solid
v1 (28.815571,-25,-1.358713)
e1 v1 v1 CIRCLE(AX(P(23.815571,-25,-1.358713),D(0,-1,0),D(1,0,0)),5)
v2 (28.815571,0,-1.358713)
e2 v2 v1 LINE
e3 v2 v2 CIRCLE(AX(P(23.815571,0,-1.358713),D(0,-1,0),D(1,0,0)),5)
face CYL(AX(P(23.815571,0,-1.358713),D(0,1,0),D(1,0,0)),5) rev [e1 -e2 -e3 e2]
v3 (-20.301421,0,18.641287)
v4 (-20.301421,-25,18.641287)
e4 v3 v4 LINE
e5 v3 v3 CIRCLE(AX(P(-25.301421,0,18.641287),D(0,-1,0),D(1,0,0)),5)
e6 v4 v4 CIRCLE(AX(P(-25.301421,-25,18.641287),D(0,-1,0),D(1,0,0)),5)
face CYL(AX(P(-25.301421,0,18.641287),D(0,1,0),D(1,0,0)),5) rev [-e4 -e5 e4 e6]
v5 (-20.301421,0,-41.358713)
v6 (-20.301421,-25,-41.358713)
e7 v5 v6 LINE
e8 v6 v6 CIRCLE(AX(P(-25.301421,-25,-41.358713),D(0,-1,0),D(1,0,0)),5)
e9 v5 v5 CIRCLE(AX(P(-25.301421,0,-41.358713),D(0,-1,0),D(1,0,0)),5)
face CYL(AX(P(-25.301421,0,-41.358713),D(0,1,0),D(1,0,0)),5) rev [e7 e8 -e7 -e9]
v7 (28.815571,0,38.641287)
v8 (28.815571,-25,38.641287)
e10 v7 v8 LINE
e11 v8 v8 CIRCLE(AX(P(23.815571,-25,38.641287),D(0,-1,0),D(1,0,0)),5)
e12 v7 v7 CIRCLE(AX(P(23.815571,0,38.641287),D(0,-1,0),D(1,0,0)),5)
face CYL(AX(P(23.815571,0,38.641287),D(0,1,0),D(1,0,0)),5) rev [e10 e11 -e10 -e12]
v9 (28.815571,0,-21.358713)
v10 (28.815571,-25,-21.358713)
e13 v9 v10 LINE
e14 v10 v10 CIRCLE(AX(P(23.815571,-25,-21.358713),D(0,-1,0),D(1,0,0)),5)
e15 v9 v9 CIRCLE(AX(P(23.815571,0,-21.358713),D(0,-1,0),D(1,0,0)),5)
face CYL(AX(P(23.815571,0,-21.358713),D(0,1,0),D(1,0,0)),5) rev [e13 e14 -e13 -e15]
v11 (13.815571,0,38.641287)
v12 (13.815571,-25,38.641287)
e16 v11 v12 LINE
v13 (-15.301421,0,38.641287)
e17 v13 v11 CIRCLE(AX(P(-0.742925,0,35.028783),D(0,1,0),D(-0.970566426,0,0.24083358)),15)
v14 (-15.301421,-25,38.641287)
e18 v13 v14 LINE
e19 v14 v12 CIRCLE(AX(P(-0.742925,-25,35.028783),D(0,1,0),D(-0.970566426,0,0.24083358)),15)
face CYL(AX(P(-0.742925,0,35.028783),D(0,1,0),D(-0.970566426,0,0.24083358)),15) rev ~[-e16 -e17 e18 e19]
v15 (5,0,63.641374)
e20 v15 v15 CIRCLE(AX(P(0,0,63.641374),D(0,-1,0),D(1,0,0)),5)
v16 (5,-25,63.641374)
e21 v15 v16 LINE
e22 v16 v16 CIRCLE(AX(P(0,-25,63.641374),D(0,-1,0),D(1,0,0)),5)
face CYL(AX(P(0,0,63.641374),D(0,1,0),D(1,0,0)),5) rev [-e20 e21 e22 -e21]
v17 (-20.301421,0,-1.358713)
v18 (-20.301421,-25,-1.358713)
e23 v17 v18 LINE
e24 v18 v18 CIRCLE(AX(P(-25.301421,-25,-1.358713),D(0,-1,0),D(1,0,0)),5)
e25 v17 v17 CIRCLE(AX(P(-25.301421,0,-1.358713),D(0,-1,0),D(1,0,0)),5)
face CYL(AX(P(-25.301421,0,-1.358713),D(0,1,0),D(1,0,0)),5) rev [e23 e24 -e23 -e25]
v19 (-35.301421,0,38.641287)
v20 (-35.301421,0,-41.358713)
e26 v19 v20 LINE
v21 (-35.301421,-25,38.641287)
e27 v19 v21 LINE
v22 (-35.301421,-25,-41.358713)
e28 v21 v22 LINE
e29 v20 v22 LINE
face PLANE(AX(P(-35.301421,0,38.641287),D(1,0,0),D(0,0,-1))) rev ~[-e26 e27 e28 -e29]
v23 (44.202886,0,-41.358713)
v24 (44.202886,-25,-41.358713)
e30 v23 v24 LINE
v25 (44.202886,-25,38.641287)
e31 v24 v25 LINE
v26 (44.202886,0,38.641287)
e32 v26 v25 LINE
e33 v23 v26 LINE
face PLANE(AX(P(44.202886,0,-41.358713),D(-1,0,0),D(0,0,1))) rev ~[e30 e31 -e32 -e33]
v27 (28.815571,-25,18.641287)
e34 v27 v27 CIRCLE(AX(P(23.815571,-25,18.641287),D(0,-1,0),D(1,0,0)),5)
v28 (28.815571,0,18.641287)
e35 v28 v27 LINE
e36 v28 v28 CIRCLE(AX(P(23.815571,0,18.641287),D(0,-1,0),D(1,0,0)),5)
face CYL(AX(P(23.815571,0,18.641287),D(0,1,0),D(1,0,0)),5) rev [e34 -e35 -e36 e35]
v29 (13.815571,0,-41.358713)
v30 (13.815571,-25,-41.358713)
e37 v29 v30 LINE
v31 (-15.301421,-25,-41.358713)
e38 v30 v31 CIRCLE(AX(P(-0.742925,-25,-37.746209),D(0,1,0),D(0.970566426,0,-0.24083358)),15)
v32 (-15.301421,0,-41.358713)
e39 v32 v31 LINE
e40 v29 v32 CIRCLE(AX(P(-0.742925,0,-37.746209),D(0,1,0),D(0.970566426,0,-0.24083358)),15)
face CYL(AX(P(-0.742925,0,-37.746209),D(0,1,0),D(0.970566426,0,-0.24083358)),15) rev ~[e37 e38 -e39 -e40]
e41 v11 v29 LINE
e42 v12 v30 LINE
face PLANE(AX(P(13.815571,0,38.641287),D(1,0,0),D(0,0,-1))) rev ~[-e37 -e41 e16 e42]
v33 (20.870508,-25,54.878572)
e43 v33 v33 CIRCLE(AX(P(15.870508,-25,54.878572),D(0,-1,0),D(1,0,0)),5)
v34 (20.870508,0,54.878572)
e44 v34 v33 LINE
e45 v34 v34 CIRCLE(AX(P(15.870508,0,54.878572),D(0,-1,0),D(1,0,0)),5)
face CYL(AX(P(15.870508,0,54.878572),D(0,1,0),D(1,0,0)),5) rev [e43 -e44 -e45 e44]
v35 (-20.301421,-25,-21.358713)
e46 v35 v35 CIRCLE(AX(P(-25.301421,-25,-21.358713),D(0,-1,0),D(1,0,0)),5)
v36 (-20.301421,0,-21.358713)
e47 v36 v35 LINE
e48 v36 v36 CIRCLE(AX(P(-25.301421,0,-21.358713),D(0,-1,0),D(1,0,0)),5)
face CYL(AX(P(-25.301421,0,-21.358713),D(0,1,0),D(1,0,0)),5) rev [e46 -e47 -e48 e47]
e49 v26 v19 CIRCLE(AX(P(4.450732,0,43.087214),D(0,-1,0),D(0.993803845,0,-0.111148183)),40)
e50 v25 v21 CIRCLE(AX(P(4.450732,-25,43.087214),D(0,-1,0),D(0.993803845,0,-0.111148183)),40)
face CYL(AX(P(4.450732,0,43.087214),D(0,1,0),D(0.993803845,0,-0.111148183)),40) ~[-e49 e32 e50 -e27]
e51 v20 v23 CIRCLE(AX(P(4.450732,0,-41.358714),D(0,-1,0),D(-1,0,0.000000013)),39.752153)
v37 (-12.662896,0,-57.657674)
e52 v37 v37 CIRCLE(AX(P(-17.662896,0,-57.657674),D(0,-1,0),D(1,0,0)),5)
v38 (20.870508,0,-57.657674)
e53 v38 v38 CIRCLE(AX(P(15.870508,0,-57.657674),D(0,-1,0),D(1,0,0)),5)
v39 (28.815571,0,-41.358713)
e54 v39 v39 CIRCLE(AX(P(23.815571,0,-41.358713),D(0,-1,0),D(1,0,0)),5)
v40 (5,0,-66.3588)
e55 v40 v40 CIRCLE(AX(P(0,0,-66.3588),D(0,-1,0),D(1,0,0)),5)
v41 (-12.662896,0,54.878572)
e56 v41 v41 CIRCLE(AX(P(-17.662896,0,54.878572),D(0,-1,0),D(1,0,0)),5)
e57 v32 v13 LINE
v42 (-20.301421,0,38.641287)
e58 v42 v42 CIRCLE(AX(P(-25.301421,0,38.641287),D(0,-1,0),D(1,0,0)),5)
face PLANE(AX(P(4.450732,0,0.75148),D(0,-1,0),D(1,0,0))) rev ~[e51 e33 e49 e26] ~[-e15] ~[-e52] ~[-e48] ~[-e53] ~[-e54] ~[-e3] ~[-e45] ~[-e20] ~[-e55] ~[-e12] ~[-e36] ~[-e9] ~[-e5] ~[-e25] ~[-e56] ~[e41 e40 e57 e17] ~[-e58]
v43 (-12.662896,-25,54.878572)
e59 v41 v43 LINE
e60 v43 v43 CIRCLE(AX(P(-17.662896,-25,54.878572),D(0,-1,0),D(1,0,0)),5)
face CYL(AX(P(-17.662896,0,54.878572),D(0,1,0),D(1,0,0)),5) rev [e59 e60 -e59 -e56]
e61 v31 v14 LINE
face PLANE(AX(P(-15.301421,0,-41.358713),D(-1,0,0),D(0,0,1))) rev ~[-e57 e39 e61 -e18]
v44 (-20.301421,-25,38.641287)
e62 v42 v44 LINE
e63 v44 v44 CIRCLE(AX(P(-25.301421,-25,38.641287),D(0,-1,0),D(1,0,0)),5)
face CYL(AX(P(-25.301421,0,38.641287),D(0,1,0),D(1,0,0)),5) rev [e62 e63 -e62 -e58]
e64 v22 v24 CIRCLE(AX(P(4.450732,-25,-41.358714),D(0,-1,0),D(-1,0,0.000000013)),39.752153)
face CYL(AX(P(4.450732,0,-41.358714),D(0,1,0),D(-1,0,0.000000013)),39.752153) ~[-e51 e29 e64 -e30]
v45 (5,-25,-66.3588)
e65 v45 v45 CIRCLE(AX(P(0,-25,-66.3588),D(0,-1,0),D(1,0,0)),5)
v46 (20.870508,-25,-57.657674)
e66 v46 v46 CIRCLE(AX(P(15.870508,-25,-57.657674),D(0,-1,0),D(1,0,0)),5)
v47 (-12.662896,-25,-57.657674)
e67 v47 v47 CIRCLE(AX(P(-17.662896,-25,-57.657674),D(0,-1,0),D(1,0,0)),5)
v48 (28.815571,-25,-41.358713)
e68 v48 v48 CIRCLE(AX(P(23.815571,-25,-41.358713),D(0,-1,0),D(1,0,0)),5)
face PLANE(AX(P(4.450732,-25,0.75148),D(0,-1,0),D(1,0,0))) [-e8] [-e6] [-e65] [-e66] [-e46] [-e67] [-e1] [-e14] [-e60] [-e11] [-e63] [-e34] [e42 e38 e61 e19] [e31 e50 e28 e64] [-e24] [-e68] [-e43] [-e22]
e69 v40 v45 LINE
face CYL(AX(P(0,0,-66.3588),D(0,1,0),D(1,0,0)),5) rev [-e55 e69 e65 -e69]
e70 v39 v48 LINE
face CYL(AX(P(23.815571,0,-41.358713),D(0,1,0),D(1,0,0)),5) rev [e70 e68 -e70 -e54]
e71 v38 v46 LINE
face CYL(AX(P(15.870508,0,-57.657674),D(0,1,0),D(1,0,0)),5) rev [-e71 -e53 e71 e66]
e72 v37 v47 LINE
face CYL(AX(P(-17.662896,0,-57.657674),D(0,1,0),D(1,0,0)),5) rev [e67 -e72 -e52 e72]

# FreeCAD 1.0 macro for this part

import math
import FreeCAD as App
import Part
import Sketcher
Q = App.Units.Quantity

doc = App.newDocument("Part")
body = doc.addObject("PartDesign::Body", "Body")

sketch1 = body.newObject("Sketcher::SketchObject", "Sketch")
sketch1.AttachmentSupport = (doc.getObject("XZ_Plane"), [""])
sketch1.MapMode = "FlatFace"
sketch1.addGeometry([
    Part.ArcOfCircle(Part.Circle(App.Vector(4, 43, 0), App.Vector(0, 0, 1), 40), math.radians(-6), math.radians(186)),
    Part.LineSegment(App.Vector(-35, 39, 0), App.Vector(-35, -41, 0)),
    Part.ArcOfCircle(Part.Circle(App.Vector(4, -41, 0), App.Vector(0, 0, 1), 40), math.radians(180), math.radians(360)),
    Part.LineSegment(App.Vector(44, -41, 0), App.Vector(44, 39, 0)),
    Part.Circle(App.Vector(-18, -58, 0), App.Vector(0, 0, 1), 5),
    Part.Circle(App.Vector(-25, -41, 0), App.Vector(0, 0, 1), 5),
    Part.Circle(App.Vector(-25, -21, 0), App.Vector(0, 0, 1), 5),
    Part.Circle(App.Vector(0, -66, 0), App.Vector(0, 0, 1), 5),
    Part.Circle(App.Vector(16, -58, 0), App.Vector(0, 0, 1), 5),
    Part.Circle(App.Vector(24, -41, 0), App.Vector(0, 0, 1), 5),
    Part.Circle(App.Vector(24, -21, 0), App.Vector(0, 0, 1), 5),
    Part.Circle(App.Vector(-25, -1, 0), App.Vector(0, 0, 1), 5),
    Part.Circle(App.Vector(-25, 19, 0), App.Vector(0, 0, 1), 5),
    Part.Circle(App.Vector(-25, 39, 0), App.Vector(0, 0, 1), 5),
    Part.Circle(App.Vector(-18, 55, 0), App.Vector(0, 0, 1), 5),
    Part.LineSegment(App.Vector(-15, -41, 0), App.Vector(-15, 39, 0)),
    Part.ArcOfCircle(Part.Circle(App.Vector(-1, 35, 0), App.Vector(0, 0, 1), 15), math.radians(14), math.radians(166)),
    Part.LineSegment(App.Vector(14, 39, 0), App.Vector(14, -41, 0)),
    Part.ArcOfCircle(Part.Circle(App.Vector(-1, -38, 0), App.Vector(0, 0, 1), 15), math.radians(-166), math.radians(-14)),
    Part.Circle(App.Vector(24, -1, 0), App.Vector(0, 0, 1), 5),
    Part.Circle(App.Vector(24, 19, 0), App.Vector(0, 0, 1), 5),
    Part.Circle(App.Vector(0, 64, 0), App.Vector(0, 0, 1), 5),
    Part.Circle(App.Vector(24, 39, 0), App.Vector(0, 0, 1), 5),
    Part.Circle(App.Vector(16, 55, 0), App.Vector(0, 0, 1), 5),
], False)
sketch1.addConstraint([
    Sketcher.Constraint("Coincident", 0, 2, 1, 1),
    Sketcher.Constraint("Tangent", 1, 2, 2, 1),
    Sketcher.Constraint("Tangent", 2, 2, 3, 1),
    Sketcher.Constraint("Coincident", 3, 2, 0, 1),
    Sketcher.Constraint("Coincident", 15, 2, 16, 2),
    Sketcher.Constraint("Coincident", 16, 1, 17, 1),
    Sketcher.Constraint("Coincident", 17, 2, 18, 2),
    Sketcher.Constraint("Coincident", 18, 1, 15, 1),
    Sketcher.Constraint("Vertical", 1),
    Sketcher.Constraint("Vertical", 3),
    Sketcher.Constraint("Vertical", 15),
    Sketcher.Constraint("Vertical", 17),
    Sketcher.Constraint("Equal", 4, 5),
    Sketcher.Constraint("Equal", 5, 6),
    Sketcher.Constraint("Equal", 6, 7),
    Sketcher.Constraint("Equal", 7, 8),
    Sketcher.Constraint("Equal", 8, 9),
    Sketcher.Constraint("Equal", 9, 10),
    Sketcher.Constraint("Equal", 10, 11),
    Sketcher.Constraint("Equal", 11, 12),
    Sketcher.Constraint("Equal", 12, 13),
    Sketcher.Constraint("Equal", 13, 14),
    Sketcher.Constraint("Equal", 16, 18),
    Sketcher.Constraint("Equal", 14, 19),
    Sketcher.Constraint("Equal", 19, 20),
    Sketcher.Constraint("Equal", 20, 21),
    Sketcher.Constraint("Equal", 21, 22),
    Sketcher.Constraint("Equal", 22, 23),
    Sketcher.Constraint("PointOnObject", 7, 3, -2),
    Sketcher.Constraint("PointOnObject", 21, 3, -2),
    Sketcher.Constraint("Horizontal", 2, 3, 5, 3),
    Sketcher.Constraint("Horizontal", 4, 3, 8, 3),
    Sketcher.Constraint("Horizontal", 5, 3, 9, 3),
    Sketcher.Constraint("Horizontal", 6, 3, 10, 3),
    Sketcher.Constraint("Horizontal", 11, 3, 19, 3),
    Sketcher.Constraint("Horizontal", 12, 3, 20, 3),
    Sketcher.Constraint("Horizontal", 13, 3, 22, 3),
    Sketcher.Constraint("Horizontal", 14, 3, 23, 3),
    Sketcher.Constraint("Horizontal", 22, 3, 0, 2),
    Sketcher.Constraint("Horizontal", 0, 2, 3, 2),
    Sketcher.Constraint("Horizontal", 3, 2, 15, 2),
    Sketcher.Constraint("Horizontal", 15, 2, 16, 1),
    Sketcher.Constraint("Horizontal", 2, 2, 17, 2),
    Sketcher.Constraint("Horizontal", 17, 2, 18, 1),
    Sketcher.Constraint("Vertical", 5, 3, 6, 3),
    Sketcher.Constraint("Vertical", 9, 3, 10, 3),
    Sketcher.Constraint("Vertical", 6, 3, 11, 3),
    Sketcher.Constraint("Vertical", 11, 3, 12, 3),
    Sketcher.Constraint("Vertical", 12, 3, 13, 3),
    Sketcher.Constraint("Vertical", 4, 3, 14, 3),
    Sketcher.Constraint("Vertical", 10, 3, 19, 3),
    Sketcher.Constraint("Vertical", 19, 3, 20, 3),
    Sketcher.Constraint("Vertical", 20, 3, 22, 3),
    Sketcher.Constraint("Vertical", 8, 3, 23, 3),
    Sketcher.Constraint("Diameter", 4, Q("10 mm")),
    Sketcher.Constraint("Radius", 0, Q("40 mm")),
    Sketcher.Constraint("Radius", 16, Q("15 mm")),
    Sketcher.Constraint("DistanceY", 1, 2, 1, 1, Q("80 mm")),
    Sketcher.Constraint("DistanceY", 5, 3, 6, 3, Q("20 mm")),
    Sketcher.Constraint("DistanceY", 6, 3, 11, 3, Q("20 mm")),
    Sketcher.Constraint("DistanceY", 11, 3, 12, 3, Q("20 mm")),
    Sketcher.Constraint("DistanceX", 0, 2, 13, 3, Q("10 mm")),
    Sketcher.Constraint("DistanceX", 13, 3, 15, 2, Q("10 mm")),
    Sketcher.Constraint("DistanceX", 16, 1, 22, 3, Q("10 mm")),
    Sketcher.Constraint("Radius", 2, Q("39.752153 mm")),
    Sketcher.Constraint("DistanceY", 7, 3, -1, 1, Q("66.3588 mm")),
    Sketcher.Constraint("DistanceX", 5, 3, -1, 1, Q("25.301421 mm")),
    Sketcher.Constraint("DistanceX", -1, 1, 9, 3, Q("23.815571 mm")),
    Sketcher.Constraint("DistanceY", -1, 1, 14, 3, Q("54.878572 mm")),
    Sketcher.Constraint("DistanceY", 18, 3, -1, 1, Q("37.746209 mm")),
    Sketcher.Constraint("DistanceX", 4, 3, 2, 3, Q("22.113629 mm")),
    Sketcher.Constraint("DistanceY", 4, 3, 2, 3, Q("16.29896 mm")),
    Sketcher.Constraint("DistanceX", 5, 3, 8, 3, Q("41.171929 mm")),
    Sketcher.Constraint("DistanceY", 0, 3, 21, 3, Q("20.55416 mm")),
])
pad1 = body.newObject("PartDesign::Pad", "Pad")
pad1.Profile = sketch1
pad1.Length = 25

doc.recompute()
